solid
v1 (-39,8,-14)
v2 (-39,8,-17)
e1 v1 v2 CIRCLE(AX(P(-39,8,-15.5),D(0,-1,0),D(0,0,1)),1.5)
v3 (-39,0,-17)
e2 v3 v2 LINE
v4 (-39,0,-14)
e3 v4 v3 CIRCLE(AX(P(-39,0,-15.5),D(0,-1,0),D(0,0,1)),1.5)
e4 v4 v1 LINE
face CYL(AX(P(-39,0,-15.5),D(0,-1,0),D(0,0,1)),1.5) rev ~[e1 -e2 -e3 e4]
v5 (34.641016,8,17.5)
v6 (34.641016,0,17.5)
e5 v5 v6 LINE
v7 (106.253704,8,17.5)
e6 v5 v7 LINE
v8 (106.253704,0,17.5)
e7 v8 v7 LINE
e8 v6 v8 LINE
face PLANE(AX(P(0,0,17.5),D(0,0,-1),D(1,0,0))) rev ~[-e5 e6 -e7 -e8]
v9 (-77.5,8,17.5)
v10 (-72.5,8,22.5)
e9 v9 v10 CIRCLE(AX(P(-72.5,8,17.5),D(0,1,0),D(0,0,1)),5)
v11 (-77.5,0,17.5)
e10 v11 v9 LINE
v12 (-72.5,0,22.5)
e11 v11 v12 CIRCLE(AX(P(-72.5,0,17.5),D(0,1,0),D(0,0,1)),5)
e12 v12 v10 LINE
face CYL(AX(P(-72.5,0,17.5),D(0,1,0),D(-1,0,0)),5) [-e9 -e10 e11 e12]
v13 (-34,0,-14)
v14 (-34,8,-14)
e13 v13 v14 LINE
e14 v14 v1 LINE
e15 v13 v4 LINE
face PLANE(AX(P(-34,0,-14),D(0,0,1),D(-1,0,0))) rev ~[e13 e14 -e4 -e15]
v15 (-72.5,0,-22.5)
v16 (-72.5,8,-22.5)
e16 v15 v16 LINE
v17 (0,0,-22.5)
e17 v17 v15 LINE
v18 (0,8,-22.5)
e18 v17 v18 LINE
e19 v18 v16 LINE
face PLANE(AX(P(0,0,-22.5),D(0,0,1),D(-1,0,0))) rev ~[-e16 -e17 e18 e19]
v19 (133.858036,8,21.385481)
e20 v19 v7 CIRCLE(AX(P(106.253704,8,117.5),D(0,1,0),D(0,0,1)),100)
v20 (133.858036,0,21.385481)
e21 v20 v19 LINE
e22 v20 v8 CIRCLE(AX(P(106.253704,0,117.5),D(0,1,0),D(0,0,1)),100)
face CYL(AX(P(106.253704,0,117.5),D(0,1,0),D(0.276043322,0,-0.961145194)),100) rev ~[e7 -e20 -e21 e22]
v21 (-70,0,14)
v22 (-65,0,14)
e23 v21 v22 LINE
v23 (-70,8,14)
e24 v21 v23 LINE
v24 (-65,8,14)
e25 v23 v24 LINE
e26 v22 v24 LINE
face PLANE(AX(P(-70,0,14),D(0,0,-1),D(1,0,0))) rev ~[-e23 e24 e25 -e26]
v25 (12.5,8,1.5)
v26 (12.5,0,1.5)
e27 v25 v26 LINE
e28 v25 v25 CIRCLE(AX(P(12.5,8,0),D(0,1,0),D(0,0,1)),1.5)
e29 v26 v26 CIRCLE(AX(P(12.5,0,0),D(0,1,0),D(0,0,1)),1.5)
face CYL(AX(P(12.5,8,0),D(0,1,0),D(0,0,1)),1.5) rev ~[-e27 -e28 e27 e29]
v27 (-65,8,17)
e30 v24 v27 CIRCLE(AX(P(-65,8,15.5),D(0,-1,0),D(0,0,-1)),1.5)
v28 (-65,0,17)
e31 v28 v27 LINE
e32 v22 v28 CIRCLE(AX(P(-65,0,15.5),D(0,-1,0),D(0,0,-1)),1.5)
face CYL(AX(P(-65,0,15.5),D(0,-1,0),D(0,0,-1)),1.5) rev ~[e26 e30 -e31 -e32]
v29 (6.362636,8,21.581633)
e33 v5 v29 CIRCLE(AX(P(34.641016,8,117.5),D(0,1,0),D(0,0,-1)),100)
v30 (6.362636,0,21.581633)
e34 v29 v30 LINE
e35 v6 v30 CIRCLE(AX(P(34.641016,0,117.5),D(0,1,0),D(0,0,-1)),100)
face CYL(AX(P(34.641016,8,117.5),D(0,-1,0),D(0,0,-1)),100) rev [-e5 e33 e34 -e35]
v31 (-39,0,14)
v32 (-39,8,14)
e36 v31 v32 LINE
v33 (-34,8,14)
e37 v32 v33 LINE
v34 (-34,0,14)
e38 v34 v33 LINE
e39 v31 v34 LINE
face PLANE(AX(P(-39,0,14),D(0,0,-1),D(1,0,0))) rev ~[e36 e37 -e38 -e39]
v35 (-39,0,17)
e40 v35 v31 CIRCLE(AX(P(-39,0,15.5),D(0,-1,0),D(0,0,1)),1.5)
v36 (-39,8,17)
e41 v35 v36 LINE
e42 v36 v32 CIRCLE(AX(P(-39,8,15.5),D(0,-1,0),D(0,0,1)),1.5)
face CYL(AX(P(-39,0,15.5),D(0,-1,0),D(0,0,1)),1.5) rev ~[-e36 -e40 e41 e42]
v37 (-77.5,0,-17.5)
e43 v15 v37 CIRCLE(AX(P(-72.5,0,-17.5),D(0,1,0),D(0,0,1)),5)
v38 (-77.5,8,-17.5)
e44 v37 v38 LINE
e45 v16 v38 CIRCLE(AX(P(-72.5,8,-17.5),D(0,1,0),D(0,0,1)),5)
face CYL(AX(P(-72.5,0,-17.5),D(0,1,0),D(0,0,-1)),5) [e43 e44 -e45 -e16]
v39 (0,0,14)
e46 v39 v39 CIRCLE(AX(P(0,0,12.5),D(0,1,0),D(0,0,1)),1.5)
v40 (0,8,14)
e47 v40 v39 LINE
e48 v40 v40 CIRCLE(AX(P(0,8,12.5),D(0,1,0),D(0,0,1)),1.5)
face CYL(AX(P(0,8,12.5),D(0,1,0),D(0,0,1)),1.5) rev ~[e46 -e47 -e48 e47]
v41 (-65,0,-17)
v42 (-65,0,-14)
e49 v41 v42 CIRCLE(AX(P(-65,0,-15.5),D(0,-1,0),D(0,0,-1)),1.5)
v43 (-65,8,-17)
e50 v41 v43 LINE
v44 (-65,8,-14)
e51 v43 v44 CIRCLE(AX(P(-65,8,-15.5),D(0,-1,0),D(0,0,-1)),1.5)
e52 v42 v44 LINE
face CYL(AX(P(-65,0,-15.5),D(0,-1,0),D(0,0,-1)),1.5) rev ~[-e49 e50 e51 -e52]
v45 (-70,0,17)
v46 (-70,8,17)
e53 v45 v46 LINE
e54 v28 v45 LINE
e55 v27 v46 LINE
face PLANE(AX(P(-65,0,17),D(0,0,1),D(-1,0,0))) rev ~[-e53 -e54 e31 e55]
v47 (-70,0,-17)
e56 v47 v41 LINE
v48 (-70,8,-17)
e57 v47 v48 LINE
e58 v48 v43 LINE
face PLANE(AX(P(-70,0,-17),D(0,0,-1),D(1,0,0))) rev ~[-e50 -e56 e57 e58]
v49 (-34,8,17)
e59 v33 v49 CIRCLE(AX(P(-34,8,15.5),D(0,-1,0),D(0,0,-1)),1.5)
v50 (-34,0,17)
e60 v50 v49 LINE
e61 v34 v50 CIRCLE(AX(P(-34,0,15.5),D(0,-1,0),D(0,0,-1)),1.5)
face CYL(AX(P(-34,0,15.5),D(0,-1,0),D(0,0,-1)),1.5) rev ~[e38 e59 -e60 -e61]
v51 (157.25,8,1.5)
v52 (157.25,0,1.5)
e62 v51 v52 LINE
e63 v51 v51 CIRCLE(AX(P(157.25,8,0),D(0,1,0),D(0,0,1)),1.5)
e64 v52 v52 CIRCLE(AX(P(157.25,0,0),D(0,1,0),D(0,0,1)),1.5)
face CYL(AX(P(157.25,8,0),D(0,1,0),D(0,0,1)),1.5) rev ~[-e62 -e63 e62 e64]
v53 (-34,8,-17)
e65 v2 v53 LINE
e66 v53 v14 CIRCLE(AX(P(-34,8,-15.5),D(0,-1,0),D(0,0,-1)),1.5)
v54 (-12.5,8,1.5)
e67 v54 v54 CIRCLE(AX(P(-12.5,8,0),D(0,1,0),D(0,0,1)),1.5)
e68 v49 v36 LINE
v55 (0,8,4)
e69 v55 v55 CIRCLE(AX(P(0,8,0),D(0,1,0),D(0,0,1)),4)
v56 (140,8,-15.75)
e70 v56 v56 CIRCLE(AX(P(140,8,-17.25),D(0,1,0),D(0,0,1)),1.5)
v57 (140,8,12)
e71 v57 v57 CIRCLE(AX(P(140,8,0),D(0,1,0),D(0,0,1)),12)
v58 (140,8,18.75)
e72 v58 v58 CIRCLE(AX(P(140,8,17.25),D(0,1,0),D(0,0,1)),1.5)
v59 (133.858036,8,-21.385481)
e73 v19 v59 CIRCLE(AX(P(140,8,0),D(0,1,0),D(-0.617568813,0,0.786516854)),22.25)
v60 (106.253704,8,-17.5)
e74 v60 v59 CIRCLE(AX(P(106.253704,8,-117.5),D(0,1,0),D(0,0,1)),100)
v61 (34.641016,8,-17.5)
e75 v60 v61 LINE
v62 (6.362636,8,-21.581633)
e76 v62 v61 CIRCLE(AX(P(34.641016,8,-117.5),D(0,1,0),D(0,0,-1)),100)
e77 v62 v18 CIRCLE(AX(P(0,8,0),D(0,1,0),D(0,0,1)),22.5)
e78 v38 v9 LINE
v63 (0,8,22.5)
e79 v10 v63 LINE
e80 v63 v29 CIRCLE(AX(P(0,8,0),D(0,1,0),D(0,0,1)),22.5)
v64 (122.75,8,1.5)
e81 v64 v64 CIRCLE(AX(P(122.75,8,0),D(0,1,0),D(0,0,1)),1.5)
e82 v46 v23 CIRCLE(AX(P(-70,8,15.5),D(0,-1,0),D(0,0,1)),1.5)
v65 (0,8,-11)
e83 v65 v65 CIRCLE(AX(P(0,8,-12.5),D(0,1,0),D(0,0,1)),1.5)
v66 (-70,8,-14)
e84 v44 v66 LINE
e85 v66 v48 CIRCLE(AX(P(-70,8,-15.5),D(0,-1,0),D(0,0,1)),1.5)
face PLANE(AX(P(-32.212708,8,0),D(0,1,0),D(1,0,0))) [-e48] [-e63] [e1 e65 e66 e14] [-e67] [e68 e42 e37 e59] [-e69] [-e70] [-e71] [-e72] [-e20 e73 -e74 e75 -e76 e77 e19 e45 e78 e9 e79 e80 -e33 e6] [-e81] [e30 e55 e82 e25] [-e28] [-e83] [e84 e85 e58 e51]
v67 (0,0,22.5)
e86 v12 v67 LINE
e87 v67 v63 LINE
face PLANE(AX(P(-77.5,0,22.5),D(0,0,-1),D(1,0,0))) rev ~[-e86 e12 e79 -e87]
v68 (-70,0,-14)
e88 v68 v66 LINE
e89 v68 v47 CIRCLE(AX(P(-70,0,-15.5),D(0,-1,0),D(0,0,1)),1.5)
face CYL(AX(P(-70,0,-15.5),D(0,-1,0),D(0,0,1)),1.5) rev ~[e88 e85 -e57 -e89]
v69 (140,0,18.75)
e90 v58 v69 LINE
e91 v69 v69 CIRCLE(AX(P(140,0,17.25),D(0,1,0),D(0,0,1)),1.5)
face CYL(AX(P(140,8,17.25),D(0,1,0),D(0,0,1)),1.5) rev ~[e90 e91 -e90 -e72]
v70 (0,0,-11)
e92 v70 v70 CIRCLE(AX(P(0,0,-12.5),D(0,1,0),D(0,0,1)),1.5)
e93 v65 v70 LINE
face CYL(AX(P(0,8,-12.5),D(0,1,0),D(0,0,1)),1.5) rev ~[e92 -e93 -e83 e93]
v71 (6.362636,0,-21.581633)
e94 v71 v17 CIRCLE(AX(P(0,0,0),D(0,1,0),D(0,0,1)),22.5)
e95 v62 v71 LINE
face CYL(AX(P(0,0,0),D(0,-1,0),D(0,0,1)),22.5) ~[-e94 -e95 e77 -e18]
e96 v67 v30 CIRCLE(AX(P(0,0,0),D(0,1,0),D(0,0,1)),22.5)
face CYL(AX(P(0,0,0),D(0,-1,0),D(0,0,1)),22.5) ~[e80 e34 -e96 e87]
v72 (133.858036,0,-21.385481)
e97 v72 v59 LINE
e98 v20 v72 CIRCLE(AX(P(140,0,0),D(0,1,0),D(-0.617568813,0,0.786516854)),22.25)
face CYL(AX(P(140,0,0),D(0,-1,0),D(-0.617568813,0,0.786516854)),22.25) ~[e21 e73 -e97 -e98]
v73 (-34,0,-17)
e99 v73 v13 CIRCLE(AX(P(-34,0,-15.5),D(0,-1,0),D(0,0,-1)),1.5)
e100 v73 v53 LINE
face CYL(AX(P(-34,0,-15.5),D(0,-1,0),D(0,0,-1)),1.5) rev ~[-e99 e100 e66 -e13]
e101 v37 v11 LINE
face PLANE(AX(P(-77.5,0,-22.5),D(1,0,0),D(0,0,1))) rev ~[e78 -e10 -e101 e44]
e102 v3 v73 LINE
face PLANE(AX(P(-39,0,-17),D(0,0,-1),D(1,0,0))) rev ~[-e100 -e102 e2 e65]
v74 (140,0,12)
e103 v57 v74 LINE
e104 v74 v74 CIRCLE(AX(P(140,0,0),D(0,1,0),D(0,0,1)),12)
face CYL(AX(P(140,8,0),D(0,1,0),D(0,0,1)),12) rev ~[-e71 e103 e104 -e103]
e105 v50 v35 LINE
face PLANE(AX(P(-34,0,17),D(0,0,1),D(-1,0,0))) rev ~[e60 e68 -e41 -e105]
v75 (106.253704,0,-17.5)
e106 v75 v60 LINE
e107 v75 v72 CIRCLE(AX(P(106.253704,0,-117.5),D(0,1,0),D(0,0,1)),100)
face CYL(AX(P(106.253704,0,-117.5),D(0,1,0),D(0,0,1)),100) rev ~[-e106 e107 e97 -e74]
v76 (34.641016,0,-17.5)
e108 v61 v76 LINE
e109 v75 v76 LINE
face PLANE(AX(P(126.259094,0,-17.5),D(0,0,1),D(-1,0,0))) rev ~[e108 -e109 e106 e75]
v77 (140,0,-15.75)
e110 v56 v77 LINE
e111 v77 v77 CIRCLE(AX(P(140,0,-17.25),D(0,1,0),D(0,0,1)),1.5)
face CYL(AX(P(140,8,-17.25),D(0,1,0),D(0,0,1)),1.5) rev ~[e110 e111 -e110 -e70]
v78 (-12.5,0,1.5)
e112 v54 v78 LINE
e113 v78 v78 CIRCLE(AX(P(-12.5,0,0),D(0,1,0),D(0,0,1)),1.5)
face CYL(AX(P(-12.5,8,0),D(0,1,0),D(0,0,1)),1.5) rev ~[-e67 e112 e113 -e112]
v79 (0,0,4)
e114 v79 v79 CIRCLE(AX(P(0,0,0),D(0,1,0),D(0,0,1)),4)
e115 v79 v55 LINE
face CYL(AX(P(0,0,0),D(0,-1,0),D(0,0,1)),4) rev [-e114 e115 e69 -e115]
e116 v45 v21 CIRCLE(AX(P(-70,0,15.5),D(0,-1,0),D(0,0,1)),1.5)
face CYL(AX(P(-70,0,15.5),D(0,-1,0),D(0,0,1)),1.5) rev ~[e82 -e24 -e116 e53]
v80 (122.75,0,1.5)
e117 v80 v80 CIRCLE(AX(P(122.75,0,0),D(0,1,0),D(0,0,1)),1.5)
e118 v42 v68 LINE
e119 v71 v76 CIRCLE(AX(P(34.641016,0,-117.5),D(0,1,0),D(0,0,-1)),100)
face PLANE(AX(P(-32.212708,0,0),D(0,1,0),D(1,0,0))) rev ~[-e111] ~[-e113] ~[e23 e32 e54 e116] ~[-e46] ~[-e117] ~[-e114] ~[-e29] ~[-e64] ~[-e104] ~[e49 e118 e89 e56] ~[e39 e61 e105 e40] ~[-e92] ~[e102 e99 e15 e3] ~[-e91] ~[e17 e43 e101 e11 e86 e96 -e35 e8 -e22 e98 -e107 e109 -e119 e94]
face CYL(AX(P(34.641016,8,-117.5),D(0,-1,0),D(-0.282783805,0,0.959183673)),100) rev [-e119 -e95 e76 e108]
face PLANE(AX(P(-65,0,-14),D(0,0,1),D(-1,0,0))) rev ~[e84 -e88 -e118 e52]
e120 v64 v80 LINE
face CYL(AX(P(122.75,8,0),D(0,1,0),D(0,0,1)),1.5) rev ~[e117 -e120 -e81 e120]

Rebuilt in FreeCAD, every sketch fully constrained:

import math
import FreeCAD as App
import Part
import Sketcher


def edges_at(feature, points):
    """Names of the edges that pass closest to the given points."""
    edges = feature.Shape.Edges
    near = lambda p: min(range(len(edges)), key=lambda i: edges[i].distToShape(Part.Vertex(*p))[0])
    return sorted({f"Edge{near(p) + 1}" for p in points})

doc = App.newDocument("Part")
params = doc.addObject("Spreadsheet::Sheet", "Params")
for row, (alias, value) in enumerate([
    ("sketch1_diameter", "8 mm"),
    ("sketch1_radius", "17.5 mm"),
    ("sketch1_radius2", "22.25 mm"),
    ("pad1_length", "8 mm"),
    ("sketch2_diameter", "8 mm"),
    ("sketch2_radius", "22.5 mm"),
    ("sketch2_radius2", "1.5 mm"),
    ("sketch2_width", "5 mm"),
    ("sketch2_width2", "77.5 mm"),
    ("pad2_length", "8 mm"),
    ("fillet_radius", "5 mm"),
    ("sketch3_diameter", "3 mm"),
    ("pocket1_length", "19 mm"),
    ("sketch4_diameter", "3 mm"),
    ("sketch4_diameter2", "24 mm"),
    ("pocket2_length", "19 mm"),
    ("fillet2_radius", "100 mm"),
], start=1):
    params.set(f"A{row}", alias)
    params.set(f"B{row}", "=" + value)
    params.setAlias(f"B{row}", alias)

body = doc.addObject("PartDesign::Body", "Body")

# Sketch on XZ plane
sketch1 = body.newObject("Sketcher::SketchObject", "Sketch")
sketch1.AttachmentSupport = (doc.getObject("XZ_Plane"), [""])
sketch1.MapMode = "FlatFace"
sketch1.addGeometry([
    Part.LineSegment(App.Vector(0, 17.5, 0), App.Vector(126.3, 17.5, 0)),  # 0
    Part.ArcOfCircle(Part.Circle(App.Vector(140, 0, 0), App.Vector(0, 0, 1), 22.2), math.radians(-128), math.radians(128)),  # 1
    Part.LineSegment(App.Vector(126.3, -17.5, 0), App.Vector(0, -17.5, 0)),  # 2
    Part.ArcOfCircle(Part.Circle(App.Vector(0, 0, 0), App.Vector(0, 0, 1), 17.5), math.radians(90), math.radians(270)),  # 3
    Part.Circle(App.Vector(0, 0, 0), App.Vector(0, 0, 1), 4),  # 4
    Part.Circle(App.Vector(140, 0, 0), App.Vector(0, 0, 1), 4),  # 5
], False)
sketch1.addConstraint([
    Sketcher.Constraint("Coincident", 0, 2, 1, 2),
    Sketcher.Constraint("Coincident", 1, 1, 2, 1),
    Sketcher.Constraint("Tangent", 2, 2, 3, 2),
    Sketcher.Constraint("Tangent", 3, 1, 0, 1),
    Sketcher.Constraint("Horizontal", 0),
    Sketcher.Constraint("Horizontal", 2),
    Sketcher.Constraint("Coincident", 3, 3, -1, 1),
    Sketcher.Constraint("Coincident", 4, 3, -1, 1),
    Sketcher.Constraint("Coincident", 5, 3, 1, 3),
    Sketcher.Constraint("Equal", 4, 5),
    Sketcher.Constraint("PointOnObject", 1, 3, -1),
    Sketcher.Constraint("Diameter", 4, 8.0),
    Sketcher.Constraint("Radius", 3, 17.5),
    Sketcher.Constraint("Radius", 1, 22.25),
    Sketcher.Constraint("DistanceX", -1, 1, 1, 3, 140.0),
])
sketch1.setExpression("Constraints[11]", "Params.sketch1_diameter")
sketch1.setExpression("Constraints[12]", "Params.sketch1_radius")
sketch1.setExpression("Constraints[13]", "Params.sketch1_radius2")
pad1 = body.newObject("PartDesign::Pad", "Pad")
pad1.Profile = sketch1
pad1.setExpression("Length", "Params.pad1_length")
pad1.Reversed = True

# Sketch on XZ plane
sketch2 = body.newObject("Sketcher::SketchObject", "Sketch001")
sketch2.AttachmentSupport = (doc.getObject("XZ_Plane"), [""])
sketch2.MapMode = "FlatFace"
sketch2.addGeometry([
    Part.LineSegment(App.Vector(0, -22.5, 0), App.Vector(-77.5, -22.5, 0)),  # 0
    Part.LineSegment(App.Vector(-77.5, -22.5, 0), App.Vector(-77.5, 22.5, 0)),  # 1
    Part.LineSegment(App.Vector(-77.5, 22.5, 0), App.Vector(0, 22.5, 0)),  # 2
    Part.ArcOfCircle(Part.Circle(App.Vector(0, 0, 0), App.Vector(0, 0, 1), 22.5), math.radians(-90), math.radians(90)),  # 3
    Part.LineSegment(App.Vector(-70, 14, 0), App.Vector(-65, 14, 0)),  # 4
    Part.ArcOfCircle(Part.Circle(App.Vector(-65, 15.5, 0), App.Vector(0, 0, 1), 1.5), math.radians(-90), math.radians(90)),  # 5
    Part.LineSegment(App.Vector(-65, 17, 0), App.Vector(-70, 17, 0)),  # 6
    Part.ArcOfCircle(Part.Circle(App.Vector(-70, 15.5, 0), App.Vector(0, 0, 1), 1.5), math.radians(90), math.radians(270)),  # 7
    Part.ArcOfCircle(Part.Circle(App.Vector(-39, 15.5, 0), App.Vector(0, 0, 1), 1.5), math.radians(90), math.radians(270)),  # 8
    Part.LineSegment(App.Vector(-39, 14, 0), App.Vector(-34, 14, 0)),  # 9
    Part.ArcOfCircle(Part.Circle(App.Vector(-34, 15.5, 0), App.Vector(0, 0, 1), 1.5), math.radians(-90), math.radians(90)),  # 10
    Part.LineSegment(App.Vector(-34, 17, 0), App.Vector(-39, 17, 0)),  # 11
    Part.LineSegment(App.Vector(-70, -17, 0), App.Vector(-65, -17, 0)),  # 12
    Part.ArcOfCircle(Part.Circle(App.Vector(-65, -15.5, 0), App.Vector(0, 0, 1), 1.5), math.radians(-90), math.radians(90)),  # 13
    Part.LineSegment(App.Vector(-65, -14, 0), App.Vector(-70, -14, 0)),  # 14
    Part.ArcOfCircle(Part.Circle(App.Vector(-70, -15.5, 0), App.Vector(0, 0, 1), 1.5), math.radians(90), math.radians(270)),  # 15
    Part.LineSegment(App.Vector(-39, -17, 0), App.Vector(-34, -17, 0)),  # 16
    Part.ArcOfCircle(Part.Circle(App.Vector(-34, -15.5, 0), App.Vector(0, 0, 1), 1.5), math.radians(-90), math.radians(90)),  # 17
    Part.LineSegment(App.Vector(-34, -14, 0), App.Vector(-39, -14, 0)),  # 18
    Part.ArcOfCircle(Part.Circle(App.Vector(-39, -15.5, 0), App.Vector(0, 0, 1), 1.5), math.radians(90), math.radians(270)),  # 19
    Part.Circle(App.Vector(0, 0, 0), App.Vector(0, 0, 1), 4),  # 20
], False)
sketch2.addConstraint([
    Sketcher.Constraint("Coincident", 0, 2, 1, 1),
    Sketcher.Constraint("Coincident", 1, 2, 2, 1),
    Sketcher.Constraint("Tangent", 2, 2, 3, 2),
    Sketcher.Constraint("Tangent", 3, 1, 0, 1),
    Sketcher.Constraint("Tangent", 4, 2, 5, 1),
    Sketcher.Constraint("Tangent", 5, 2, 6, 1),
    Sketcher.Constraint("Tangent", 6, 2, 7, 1),
    Sketcher.Constraint("Tangent", 7, 2, 4, 1),
    Sketcher.Constraint("Tangent", 8, 2, 9, 1),
    Sketcher.Constraint("Tangent", 9, 2, 10, 1),
    Sketcher.Constraint("Tangent", 10, 2, 11, 1),
    Sketcher.Constraint("Tangent", 11, 2, 8, 1),
    Sketcher.Constraint("Tangent", 12, 2, 13, 1),
    Sketcher.Constraint("Tangent", 13, 2, 14, 1),
    Sketcher.Constraint("Tangent", 14, 2, 15, 1),
    Sketcher.Constraint("Tangent", 15, 2, 12, 1),
    Sketcher.Constraint("Tangent", 16, 2, 17, 1),
    Sketcher.Constraint("Tangent", 17, 2, 18, 1),
    Sketcher.Constraint("Tangent", 18, 2, 19, 1),
    Sketcher.Constraint("Tangent", 19, 2, 16, 1),
    Sketcher.Constraint("Horizontal", 0),
    Sketcher.Constraint("Vertical", 1),
    Sketcher.Constraint("Horizontal", 2),
    Sketcher.Constraint("Horizontal", 4),
    Sketcher.Constraint("Horizontal", 6),
    Sketcher.Constraint("Horizontal", 9),
    Sketcher.Constraint("Horizontal", 11),
    Sketcher.Constraint("Horizontal", 12),
    Sketcher.Constraint("Horizontal", 14),
    Sketcher.Constraint("Horizontal", 16),
    Sketcher.Constraint("Horizontal", 18),
    Sketcher.Constraint("Coincident", 3, 3, -1, 1),
    Sketcher.Constraint("Coincident", 20, 3, -1, 1),
    Sketcher.Constraint("Equal", 7, 8),
    Sketcher.Constraint("Equal", 10, 13),
    Sketcher.Constraint("Equal", 15, 17),
    Sketcher.Constraint("Symmetric", 5, 3, 13, 3, -1),
    Sketcher.Constraint("Symmetric", 10, 3, 17, 3, -1),
    Sketcher.Constraint("Horizontal", 7, 3, 8, 3),
    Sketcher.Constraint("Vertical", 7, 3, 15, 3),
    Sketcher.Constraint("Vertical", 8, 3, 19, 3),
    Sketcher.Constraint("Equal", 6, 9),
    Sketcher.Constraint("Diameter", 20, 8.0),
    Sketcher.Constraint("Radius", 3, 22.5),
    Sketcher.Constraint("Radius", 5, 1.5),
    Sketcher.Constraint("DistanceX", 4, 1, 4, 2, 5.0),
    Sketcher.Constraint("DistanceX", 0, 2, 0, 1, 77.5),
    Sketcher.Constraint("DistanceX", 5, 3, -1, 1, 65.0),
    Sketcher.Constraint("DistanceX", 8, 3, -1, 1, 39.0),
    Sketcher.Constraint("DistanceY", -1, 1, 4, 2, 14.0),
])
sketch2.setExpression("Constraints[42]", "Params.sketch2_diameter")
sketch2.setExpression("Constraints[43]", "Params.sketch2_radius")
sketch2.setExpression("Constraints[44]", "Params.sketch2_radius2")
sketch2.setExpression("Constraints[45]", "Params.sketch2_width")
sketch2.setExpression("Constraints[46]", "Params.sketch2_width2")
pad2 = body.newObject("PartDesign::Pad", "Pad001")
pad2.Profile = sketch2
pad2.setExpression("Length", "Params.pad2_length")
pad2.Reversed = True
doc.recompute()

fillet = body.newObject("PartDesign::Fillet", "Fillet")
fillet.Base = (pad2, edges_at(pad2, [(-77.5, 4, -22.5), (-77.5, 4, 22.5)]))
fillet.setExpression("Radius", "Params.fillet_radius")

# Sketch on XZ plane
sketch3 = body.newObject("Sketcher::SketchObject", "Sketch002")
sketch3.AttachmentSupport = (doc.getObject("XZ_Plane"), [""])
sketch3.MapMode = "FlatFace"
sketch3.AttachmentOffset = App.Placement(App.Vector(0, 0, -8), App.Rotation())
sketch3.addGeometry([
    Part.Circle(App.Vector(0, -12.5, 0), App.Vector(0, 0, 1), 1.5),
    Part.Circle(App.Vector(12.5, 0, 0), App.Vector(0, 0, 1), 1.5),
    Part.Circle(App.Vector(0, 12.5, 0), App.Vector(0, 0, 1), 1.5),
    Part.Circle(App.Vector(-12.5, 0, 0), App.Vector(0, 0, 1), 1.5),
], False)
sketch3.addConstraint([
    Sketcher.Constraint("Equal", 0, 1),
    Sketcher.Constraint("Equal", 1, 2),
    Sketcher.Constraint("Equal", 2, 3),
    Sketcher.Constraint("Symmetric", 0, 3, 2, 3, -1, 1),
    Sketcher.Constraint("Symmetric", 1, 3, 3, 3, -1, 1),
    Sketcher.Constraint("PointOnObject", 0, 3, -2),
    Sketcher.Constraint("PointOnObject", 1, 3, -1),
    Sketcher.Constraint("Diameter", 0, 3.0),
    Sketcher.Constraint("DistanceY", 0, 3, 2, 3, 25.0),
    Sketcher.Constraint("DistanceX", 3, 3, 1, 3, 25.0),
])
sketch3.setExpression("Constraints[7]", "Params.sketch3_diameter")
pocket1 = body.newObject("PartDesign::Pocket", "Pocket")
pocket1.Profile = sketch3
pocket1.setExpression("Length", "Params.pocket1_length")
pocket1.Reversed = True

# Sketch on XZ plane
sketch4 = body.newObject("Sketcher::SketchObject", "Sketch003")
sketch4.AttachmentSupport = (doc.getObject("XZ_Plane"), [""])
sketch4.MapMode = "FlatFace"
sketch4.AttachmentOffset = App.Placement(App.Vector(0, 0, -8), App.Rotation())
sketch4.addGeometry([
    Part.Circle(App.Vector(157.2, 0, 0), App.Vector(0, 0, 1), 1.5),  # 0
    Part.Circle(App.Vector(140, 17.2, 0), App.Vector(0, 0, 1), 1.5),  # 1
    Part.Circle(App.Vector(122.8, 0, 0), App.Vector(0, 0, 1), 1.5),  # 2
    Part.Circle(App.Vector(140, -17.2, 0), App.Vector(0, 0, 1), 1.5),  # 3
    Part.Circle(App.Vector(140, 0, 0), App.Vector(0, 0, 1), 12),  # 4
], False)
sketch4.addConstraint([
    Sketcher.Constraint("Equal", 0, 1),
    Sketcher.Constraint("Equal", 1, 2),
    Sketcher.Constraint("Equal", 2, 3),
    Sketcher.Constraint("Symmetric", 1, 3, 3, 3, -1),
    Sketcher.Constraint("PointOnObject", 0, 3, -1),
    Sketcher.Constraint("PointOnObject", 2, 3, -1),
    Sketcher.Constraint("PointOnObject", 4, 3, -1),
    Sketcher.Constraint("Vertical", 3, 3, 4, 3),
    Sketcher.Constraint("Diameter", 0, 3.0),
    Sketcher.Constraint("Diameter", 4, 24.0),
    Sketcher.Constraint("DistanceX", -1, 1, 1, 3, 140.0),
    Sketcher.Constraint("DistanceX", 2, 3, 0, 3, 34.5),
    Sketcher.Constraint("DistanceY", 3, 3, 1, 3, 34.5),
    Sketcher.Constraint("DistanceX", -1, 1, 0, 3, 157.25),
])
sketch4.setExpression("Constraints[8]", "Params.sketch4_diameter")
sketch4.setExpression("Constraints[9]", "Params.sketch4_diameter2")
pocket2 = body.newObject("PartDesign::Pocket", "Pocket001")
pocket2.Profile = sketch4
pocket2.setExpression("Length", "Params.pocket2_length")
pocket2.Reversed = True
doc.recompute()

fillet2 = body.newObject("PartDesign::Fillet", "Fillet001")
fillet2.Base = (pocket2, edges_at(pocket2, [
    (126.259, 4, -17.5),
    (126.259, 4, 17.5),
    (14.142, 4, -17.5),
    (14.142, 4, 17.5),
]))
fillet2.setExpression("Radius", "Params.fillet2_radius")

doc.recompute()
